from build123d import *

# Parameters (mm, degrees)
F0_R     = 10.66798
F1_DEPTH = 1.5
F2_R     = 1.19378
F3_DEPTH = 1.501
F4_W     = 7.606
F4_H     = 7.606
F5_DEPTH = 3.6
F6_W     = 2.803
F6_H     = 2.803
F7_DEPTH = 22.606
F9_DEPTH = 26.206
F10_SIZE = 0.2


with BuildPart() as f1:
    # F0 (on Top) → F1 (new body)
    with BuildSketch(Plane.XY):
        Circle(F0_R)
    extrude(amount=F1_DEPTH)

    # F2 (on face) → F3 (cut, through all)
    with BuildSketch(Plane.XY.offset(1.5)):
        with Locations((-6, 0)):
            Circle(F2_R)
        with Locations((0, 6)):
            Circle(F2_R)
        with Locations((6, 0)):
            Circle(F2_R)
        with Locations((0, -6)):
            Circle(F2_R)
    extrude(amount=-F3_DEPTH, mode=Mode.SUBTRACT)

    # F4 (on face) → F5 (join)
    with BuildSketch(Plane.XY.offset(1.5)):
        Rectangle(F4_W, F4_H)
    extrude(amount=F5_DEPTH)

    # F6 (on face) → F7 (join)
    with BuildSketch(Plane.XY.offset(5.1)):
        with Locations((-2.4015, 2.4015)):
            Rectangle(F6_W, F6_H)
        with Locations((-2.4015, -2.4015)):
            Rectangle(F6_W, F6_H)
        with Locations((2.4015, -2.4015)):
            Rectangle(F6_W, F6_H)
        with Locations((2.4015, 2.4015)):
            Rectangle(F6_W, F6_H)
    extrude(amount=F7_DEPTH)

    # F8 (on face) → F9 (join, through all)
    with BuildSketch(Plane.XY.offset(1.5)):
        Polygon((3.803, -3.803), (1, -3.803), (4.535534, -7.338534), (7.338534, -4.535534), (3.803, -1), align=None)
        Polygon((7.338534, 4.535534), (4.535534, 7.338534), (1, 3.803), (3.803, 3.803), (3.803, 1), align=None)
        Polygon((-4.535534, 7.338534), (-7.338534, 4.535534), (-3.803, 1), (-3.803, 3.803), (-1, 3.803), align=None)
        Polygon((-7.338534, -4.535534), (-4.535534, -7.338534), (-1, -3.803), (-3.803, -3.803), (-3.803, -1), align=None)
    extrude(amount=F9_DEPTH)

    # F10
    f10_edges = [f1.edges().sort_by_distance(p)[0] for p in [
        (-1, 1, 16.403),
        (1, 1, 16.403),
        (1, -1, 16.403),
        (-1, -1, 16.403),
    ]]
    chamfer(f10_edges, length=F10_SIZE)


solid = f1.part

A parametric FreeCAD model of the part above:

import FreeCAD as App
import Part
import Sketcher
from FreeCAD import Vector


def edges_at(feature, points):
    """Names of the edges that pass closest to the given points."""
    edges = feature.Shape.Edges
    near = lambda p: min(range(len(edges)), key=lambda i: edges[i].distToShape(Part.Vertex(*p))[0])
    return sorted({f"Edge{near(p) + 1}" for p in points})

doc = App.newDocument("Part")
params = doc.addObject("Spreadsheet::Sheet", "Params")
for row, (alias, value) in enumerate([
    ("pad1_length", "1.5 mm"),
    ("pad2_length", "3.6 mm"),
    ("pad3_length", "22.606 mm"),
    ("sketch5_length", "5 mm"),
    ("pad4_length", "26.206 mm"),
    ("chamfer_size", "0.2 mm"),
], start=1):
    params.set(f"A{row}", alias)
    params.set(f"B{row}", "=" + value)
    params.setAlias(f"B{row}", alias)

body = doc.addObject("PartDesign::Body", "Body")

sketch1 = body.newObject("Sketcher::SketchObject", "Sketch")
sketch1.AttachmentSupport = (doc.getObject("XY_Plane"), [""])
sketch1.MapMode = "FlatFace"
sketch1.addGeometry(Part.Circle(Vector(0, 0, 0), Vector(0, 0, 1), 11), False)
sketch1.addConstraint(Sketcher.Constraint("Coincident", 0, 3, -1, 1))
sketch1.addConstraint(Sketcher.Constraint("Diameter", 0, 21.33596))
pad1 = body.newObject("PartDesign::Pad", "Pad")
pad1.Profile = sketch1
pad1.setExpression("Length", "Params.pad1_length")

sketch2 = body.newObject("Sketcher::SketchObject", "Sketch001")
sketch2.AttachmentSupport = (doc.getObject("XY_Plane"), [""])
sketch2.MapMode = "FlatFace"
sketch2.AttachmentOffset = App.Placement(Vector(0, 0, 1.5), App.Rotation())
sketch2.addGeometry(Part.Circle(Vector(-6, 0, 0), Vector(0, 0, 1), 1.2), False)
sketch2.addGeometry(Part.Circle(Vector(0, 6, 0), Vector(0, 0, 1), 1.2), False)
sketch2.addGeometry(Part.Circle(Vector(6, 0, 0), Vector(0, 0, 1), 1.2), False)
sketch2.addGeometry(Part.Circle(Vector(0, -6, 0), Vector(0, 0, 1), 1.2), False)
sketch2.addConstraint(Sketcher.Constraint("Equal", 0, 1))
sketch2.addConstraint(Sketcher.Constraint("Equal", 1, 2))
sketch2.addConstraint(Sketcher.Constraint("Equal", 2, 3))
sketch2.addConstraint(Sketcher.Constraint("Symmetric", 0, 3, 2, 3, -1, 1))
sketch2.addConstraint(Sketcher.Constraint("Symmetric", 1, 3, 3, 3, -1, 1))
sketch2.addConstraint(Sketcher.Constraint("PointOnObject", 0, 3, -1))
sketch2.addConstraint(Sketcher.Constraint("PointOnObject", 1, 3, -2))
sketch2.addConstraint(Sketcher.Constraint("DistanceX", 0, 3, -1, 1, 6.0))
sketch2.addConstraint(Sketcher.Constraint("DistanceY", -1, 1, 1, 3, 6.0))
sketch2.addConstraint(Sketcher.Constraint("Diameter", 0, 2.38756))
pocket1 = body.newObject("PartDesign::Pocket", "Pocket")
pocket1.Profile = sketch2
pocket1.Type = "ThroughAll"

sketch3 = body.newObject("Sketcher::SketchObject", "Sketch002")
sketch3.AttachmentSupport = (doc.getObject("XY_Plane"), [""])
sketch3.MapMode = "FlatFace"
sketch3.AttachmentOffset = App.Placement(Vector(0, 0, 1.5), App.Rotation())
sketch3.addGeometry(Part.LineSegment(Vector(-4, 4, 0), Vector(-4, -4, 0)), False)
sketch3.addGeometry(Part.LineSegment(Vector(-4, -4, 0), Vector(4, -4, 0)), False)
sketch3.addGeometry(Part.LineSegment(Vector(4, -4, 0), Vector(4, 4, 0)), False)
sketch3.addGeometry(Part.LineSegment(Vector(4, 4, 0), Vector(-4, 4, 0)), False)
sketch3.addConstraint(Sketcher.Constraint("Coincident", 0, 2, 1, 1))
sketch3.addConstraint(Sketcher.Constraint("Coincident", 1, 2, 2, 1))
sketch3.addConstraint(Sketcher.Constraint("Coincident", 2, 2, 3, 1))
sketch3.addConstraint(Sketcher.Constraint("Coincident", 3, 2, 0, 1))
sketch3.addConstraint(Sketcher.Constraint("Vertical", 0))
sketch3.addConstraint(Sketcher.Constraint("Horizontal", 1))
sketch3.addConstraint(Sketcher.Constraint("Vertical", 2))
sketch3.addConstraint(Sketcher.Constraint("Horizontal", 3))
sketch3.addConstraint(Sketcher.Constraint("Symmetric", 0, 2, 2, 2, -1, 1))
sketch3.addConstraint(Sketcher.Constraint("Equal", 3, 0))
sketch3.addConstraint(Sketcher.Constraint("DistanceX", 1, 1, 1, 2, 7.606))
pad2 = body.newObject("PartDesign::Pad", "Pad001")
pad2.Profile = sketch3
pad2.setExpression("Length", "Params.pad2_length")

sketch4 = body.newObject("Sketcher::SketchObject", "Sketch003")
sketch4.AttachmentSupport = (doc.getObject("XY_Plane"), [""])
sketch4.MapMode = "FlatFace"
sketch4.AttachmentOffset = App.Placement(Vector(0, 0, 5.1), App.Rotation())
sketch4.addGeometry(Part.LineSegment(Vector(-3.8, 3.8, 0), Vector(-3.8, 1, 0)), False)
sketch4.addGeometry(Part.LineSegment(Vector(-3.8, 1, 0), Vector(-1, 1, 0)), False)
sketch4.addGeometry(Part.LineSegment(Vector(-1, 1, 0), Vector(-1, 3.8, 0)), False)
sketch4.addGeometry(Part.LineSegment(Vector(-1, 3.8, 0), Vector(-3.8, 3.8, 0)), False)
sketch4.addGeometry(Part.LineSegment(Vector(-3.8, -1, 0), Vector(-3.8, -3.8, 0)), False)
sketch4.addGeometry(Part.LineSegment(Vector(-3.8, -3.8, 0), Vector(-1, -3.8, 0)), False)
sketch4.addGeometry(Part.LineSegment(Vector(-1, -3.8, 0), Vector(-1, -1, 0)), False)
sketch4.addGeometry(Part.LineSegment(Vector(-1, -1, 0), Vector(-3.8, -1, 0)), False)
sketch4.addGeometry(Part.LineSegment(Vector(1, -1, 0), Vector(1, -3.8, 0)), False)
sketch4.addGeometry(Part.LineSegment(Vector(1, -3.8, 0), Vector(3.8, -3.8, 0)), False)
sketch4.addGeometry(Part.LineSegment(Vector(3.8, -3.8, 0), Vector(3.8, -1, 0)), False)
sketch4.addGeometry(Part.LineSegment(Vector(3.8, -1, 0), Vector(1, -1, 0)), False)
sketch4.addGeometry(Part.LineSegment(Vector(1, 3.8, 0), Vector(1, 1, 0)), False)
sketch4.addGeometry(Part.LineSegment(Vector(1, 1, 0), Vector(3.8, 1, 0)), False)
sketch4.addGeometry(Part.LineSegment(Vector(3.8, 1, 0), Vector(3.8, 3.8, 0)), False)
sketch4.addGeometry(Part.LineSegment(Vector(3.8, 3.8, 0), Vector(1, 3.8, 0)), False)
sketch4.addConstraint(Sketcher.Constraint("Coincident", 0, 2, 1, 1))
sketch4.addConstraint(Sketcher.Constraint("Coincident", 1, 2, 2, 1))
sketch4.addConstraint(Sketcher.Constraint("Coincident", 2, 2, 3, 1))
sketch4.addConstraint(Sketcher.Constraint("Coincident", 3, 2, 0, 1))
sketch4.addConstraint(Sketcher.Constraint("Coincident", 4, 2, 5, 1))
sketch4.addConstraint(Sketcher.Constraint("Coincident", 5, 2, 6, 1))
sketch4.addConstraint(Sketcher.Constraint("Coincident", 6, 2, 7, 1))
sketch4.addConstraint(Sketcher.Constraint("Coincident", 7, 2, 4, 1))
sketch4.addConstraint(Sketcher.Constraint("Coincident", 8, 2, 9, 1))
sketch4.addConstraint(Sketcher.Constraint("Coincident", 9, 2, 10, 1))
sketch4.addConstraint(Sketcher.Constraint("Coincident", 10, 2, 11, 1))
sketch4.addConstraint(Sketcher.Constraint("Coincident", 11, 2, 8, 1))
sketch4.addConstraint(Sketcher.Constraint("Coincident", 12, 2, 13, 1))
sketch4.addConstraint(Sketcher.Constraint("Coincident", 13, 2, 14, 1))
sketch4.addConstraint(Sketcher.Constraint("Coincident", 14, 2, 15, 1))
sketch4.addConstraint(Sketcher.Constraint("Coincident", 15, 2, 12, 1))
sketch4.addConstraint(Sketcher.Constraint("Vertical", 0))
sketch4.addConstraint(Sketcher.Constraint("Horizontal", 1))
sketch4.addConstraint(Sketcher.Constraint("Vertical", 2))
sketch4.addConstraint(Sketcher.Constraint("Horizontal", 3))
sketch4.addConstraint(Sketcher.Constraint("Vertical", 4))
sketch4.addConstraint(Sketcher.Constraint("Horizontal", 5))
sketch4.addConstraint(Sketcher.Constraint("Vertical", 6))
sketch4.addConstraint(Sketcher.Constraint("Horizontal", 7))
sketch4.addConstraint(Sketcher.Constraint("Vertical", 8))
sketch4.addConstraint(Sketcher.Constraint("Horizontal", 9))
sketch4.addConstraint(Sketcher.Constraint("Vertical", 10))
sketch4.addConstraint(Sketcher.Constraint("Horizontal", 11))
sketch4.addConstraint(Sketcher.Constraint("Vertical", 12))
sketch4.addConstraint(Sketcher.Constraint("Horizontal", 13))
sketch4.addConstraint(Sketcher.Constraint("Vertical", 14))
sketch4.addConstraint(Sketcher.Constraint("Horizontal", 15))
sketch4.addConstraint(Sketcher.Constraint("Symmetric", 2, 2, 8, 2, -1, 1))
sketch4.addConstraint(Sketcher.Constraint("Symmetric", 0, 2, 10, 2, -1, 1))
sketch4.addConstraint(Sketcher.Constraint("Symmetric", 6, 2, 12, 2, -1, 1))
sketch4.addConstraint(Sketcher.Constraint("Symmetric", 4, 2, 14, 2, -1, 1))
sketch4.addConstraint(Sketcher.Constraint("Symmetric", 5, 2, 8, 2, -2))
sketch4.addConstraint(Sketcher.Constraint("Symmetric", 7, 2, 10, 2, -2))
sketch4.addConstraint(Sketcher.Constraint("Equal", 15, 0))
sketch4.addConstraint(Sketcher.Constraint("DistanceY", -1, 1, 0, 2, 1.0))
sketch4.addConstraint(Sketcher.Constraint("DistanceX", 1, 2, -1, 1, 1.0))
sketch4.addConstraint(Sketcher.Constraint("DistanceX", 1, 1, 1, 2, 2.803))
pad3 = body.newObject("PartDesign::Pad", "Pad002")
pad3.Profile = sketch4
pad3.setExpression("Length", "Params.pad3_length")

sketch5 = body.newObject("Sketcher::SketchObject", "Sketch004")
sketch5.AttachmentSupport = (doc.getObject("XY_Plane"), [""])
sketch5.MapMode = "FlatFace"
sketch5.AttachmentOffset = App.Placement(Vector(0, 0, 1.5), App.Rotation())
sketch5.addGeometry(Part.LineSegment(Vector(3.8, -3.8, 0), Vector(1, -3.8, 0)), False)
sketch5.addGeometry(Part.LineSegment(Vector(1, -3.8, 0), Vector(4.5, -7.3, 0)), False)
sketch5.addGeometry(Part.LineSegment(Vector(4.5, -7.3, 0), Vector(7.3, -4.5, 0)), False)
sketch5.addGeometry(Part.LineSegment(Vector(7.3, -4.5, 0), Vector(3.8, -1, 0)), False)
sketch5.addGeometry(Part.LineSegment(Vector(3.8, -1, 0), Vector(3.8, -3.8, 0)), False)
sketch5.addGeometry(Part.LineSegment(Vector(7.3, 4.5, 0), Vector(4.5, 7.3, 0)), False)
sketch5.addGeometry(Part.LineSegment(Vector(4.5, 7.3, 0), Vector(1, 3.8, 0)), False)
sketch5.addGeometry(Part.LineSegment(Vector(1, 3.8, 0), Vector(3.8, 3.8, 0)), False)
sketch5.addGeometry(Part.LineSegment(Vector(3.8, 3.8, 0), Vector(3.8, 1, 0)), False)
sketch5.addGeometry(Part.LineSegment(Vector(3.8, 1, 0), Vector(7.3, 4.5, 0)), False)
sketch5.addGeometry(Part.LineSegment(Vector(-4.5, 7.3, 0), Vector(-7.3, 4.5, 0)), False)
sketch5.addGeometry(Part.LineSegment(Vector(-7.3, 4.5, 0), Vector(-3.8, 1, 0)), False)
sketch5.addGeometry(Part.LineSegment(Vector(-3.8, 1, 0), Vector(-3.8, 3.8, 0)), False)
sketch5.addGeometry(Part.LineSegment(Vector(-3.8, 3.8, 0), Vector(-1, 3.8, 0)), False)
sketch5.addGeometry(Part.LineSegment(Vector(-1, 3.8, 0), Vector(-4.5, 7.3, 0)), False)
sketch5.addGeometry(Part.LineSegment(Vector(-7.3, -4.5, 0), Vector(-4.5, -7.3, 0)), False)
sketch5.addGeometry(Part.LineSegment(Vector(-4.5, -7.3, 0), Vector(-1, -3.8, 0)), False)
sketch5.addGeometry(Part.LineSegment(Vector(-1, -3.8, 0), Vector(-3.8, -3.8, 0)), False)
sketch5.addGeometry(Part.LineSegment(Vector(-3.8, -3.8, 0), Vector(-3.8, -1, 0)), False)
sketch5.addGeometry(Part.LineSegment(Vector(-3.8, -1, 0), Vector(-7.3, -4.5, 0)), False)
sketch5.addConstraint(Sketcher.Constraint("Coincident", 0, 2, 1, 1))
sketch5.addConstraint(Sketcher.Constraint("Coincident", 1, 2, 2, 1))
sketch5.addConstraint(Sketcher.Constraint("Coincident", 2, 2, 3, 1))
sketch5.addConstraint(Sketcher.Constraint("Coincident", 3, 2, 4, 1))
sketch5.addConstraint(Sketcher.Constraint("Coincident", 4, 2, 0, 1))
sketch5.addConstraint(Sketcher.Constraint("Coincident", 5, 2, 6, 1))
sketch5.addConstraint(Sketcher.Constraint("Coincident", 6, 2, 7, 1))
sketch5.addConstraint(Sketcher.Constraint("Coincident", 7, 2, 8, 1))
sketch5.addConstraint(Sketcher.Constraint("Coincident", 8, 2, 9, 1))
sketch5.addConstraint(Sketcher.Constraint("Coincident", 9, 2, 5, 1))
sketch5.addConstraint(Sketcher.Constraint("Coincident", 10, 2, 11, 1))
sketch5.addConstraint(Sketcher.Constraint("Coincident", 11, 2, 12, 1))
sketch5.addConstraint(Sketcher.Constraint("Coincident", 12, 2, 13, 1))
sketch5.addConstraint(Sketcher.Constraint("Coincident", 13, 2, 14, 1))
sketch5.addConstraint(Sketcher.Constraint("Coincident", 14, 2, 10, 1))
sketch5.addConstraint(Sketcher.Constraint("Coincident", 15, 2, 16, 1))
sketch5.addConstraint(Sketcher.Constraint("Coincident", 16, 2, 17, 1))
sketch5.addConstraint(Sketcher.Constraint("Coincident", 17, 2, 18, 1))
sketch5.addConstraint(Sketcher.Constraint("Coincident", 18, 2, 19, 1))
sketch5.addConstraint(Sketcher.Constraint("Coincident", 19, 2, 15, 1))
sketch5.addConstraint(Sketcher.Constraint("Horizontal", 0))
sketch5.addConstraint(Sketcher.Constraint("Vertical", 4))
sketch5.addConstraint(Sketcher.Constraint("Horizontal", 7))
sketch5.addConstraint(Sketcher.Constraint("Vertical", 8))
sketch5.addConstraint(Sketcher.Constraint("Vertical", 12))
sketch5.addConstraint(Sketcher.Constraint("Horizontal", 13))
sketch5.addConstraint(Sketcher.Constraint("Horizontal", 17))
sketch5.addConstraint(Sketcher.Constraint("Vertical", 18))
sketch5.addConstraint(Sketcher.Constraint("Symmetric", 2, 2, 10, 2, -1, 1))
sketch5.addConstraint(Sketcher.Constraint("Symmetric", 3, 2, 11, 2, -1, 1))
sketch5.addConstraint(Sketcher.Constraint("Symmetric", 0, 2, 13, 2, -1, 1))
sketch5.addConstraint(Sketcher.Constraint("Symmetric", 1, 2, 14, 2, -1, 1))
sketch5.addConstraint(Sketcher.Constraint("Symmetric", 5, 2, 15, 2, -1, 1))
sketch5.addConstraint(Sketcher.Constraint("Symmetric", 6, 2, 16, 2, -1, 1))
sketch5.addConstraint(Sketcher.Constraint("Symmetric", 8, 2, 18, 2, -1, 1))
sketch5.addConstraint(Sketcher.Constraint("Symmetric", 9, 2, 19, 2, -1, 1))
sketch5.addConstraint(Sketcher.Constraint("Symmetric", 9, 2, 10, 2, -2))
sketch5.addConstraint(Sketcher.Constraint("Symmetric", 8, 2, 11, 2, -2))
sketch5.addConstraint(Sketcher.Constraint("Symmetric", 6, 2, 13, 2, -2))
sketch5.addConstraint(Sketcher.Constraint("Symmetric", 5, 2, 14, 2, -2))
sketch5.addConstraint(Sketcher.Constraint("Perpendicular", 1, 2))
sketch5.addConstraint(Sketcher.Constraint("Perpendicular", 2, 3))
sketch5.addConstraint(Sketcher.Constraint("Parallel", 3, 5))
sketch5.addConstraint(Sketcher.Constraint("Equal", 17, 4))
sketch5.addConstraint(Sketcher.Constraint("Distance", 1, 5.0))
sketch5.addConstraint(Sketcher.Constraint("DistanceX", -1, 1, 0, 2, 1.0))
sketch5.addConstraint(Sketcher.Constraint("DistanceY", 3, 2, -1, 1, 1.0))
sketch5.addConstraint(Sketcher.Constraint("DistanceX", 0, 2, 0, 1, 2.803))
sketch5.setExpression("Constraints[44]", "Params.sketch5_length")
pad4 = body.newObject("PartDesign::Pad", "Pad003")
pad4.Profile = sketch5
pad4.setExpression("Length", "Params.pad4_length")
doc.recompute()

chamfer = body.newObject("PartDesign::Chamfer", "Chamfer")
chamfer.Base = (pad4, edges_at(pad4, [
    (-1, 1, 16.403),
    (1, 1, 16.403),
    (1, -1, 16.403),
    (-1, -1, 16.403),
]))
chamfer.setExpression("Size", "Params.chamfer_size")

doc.recompute()
